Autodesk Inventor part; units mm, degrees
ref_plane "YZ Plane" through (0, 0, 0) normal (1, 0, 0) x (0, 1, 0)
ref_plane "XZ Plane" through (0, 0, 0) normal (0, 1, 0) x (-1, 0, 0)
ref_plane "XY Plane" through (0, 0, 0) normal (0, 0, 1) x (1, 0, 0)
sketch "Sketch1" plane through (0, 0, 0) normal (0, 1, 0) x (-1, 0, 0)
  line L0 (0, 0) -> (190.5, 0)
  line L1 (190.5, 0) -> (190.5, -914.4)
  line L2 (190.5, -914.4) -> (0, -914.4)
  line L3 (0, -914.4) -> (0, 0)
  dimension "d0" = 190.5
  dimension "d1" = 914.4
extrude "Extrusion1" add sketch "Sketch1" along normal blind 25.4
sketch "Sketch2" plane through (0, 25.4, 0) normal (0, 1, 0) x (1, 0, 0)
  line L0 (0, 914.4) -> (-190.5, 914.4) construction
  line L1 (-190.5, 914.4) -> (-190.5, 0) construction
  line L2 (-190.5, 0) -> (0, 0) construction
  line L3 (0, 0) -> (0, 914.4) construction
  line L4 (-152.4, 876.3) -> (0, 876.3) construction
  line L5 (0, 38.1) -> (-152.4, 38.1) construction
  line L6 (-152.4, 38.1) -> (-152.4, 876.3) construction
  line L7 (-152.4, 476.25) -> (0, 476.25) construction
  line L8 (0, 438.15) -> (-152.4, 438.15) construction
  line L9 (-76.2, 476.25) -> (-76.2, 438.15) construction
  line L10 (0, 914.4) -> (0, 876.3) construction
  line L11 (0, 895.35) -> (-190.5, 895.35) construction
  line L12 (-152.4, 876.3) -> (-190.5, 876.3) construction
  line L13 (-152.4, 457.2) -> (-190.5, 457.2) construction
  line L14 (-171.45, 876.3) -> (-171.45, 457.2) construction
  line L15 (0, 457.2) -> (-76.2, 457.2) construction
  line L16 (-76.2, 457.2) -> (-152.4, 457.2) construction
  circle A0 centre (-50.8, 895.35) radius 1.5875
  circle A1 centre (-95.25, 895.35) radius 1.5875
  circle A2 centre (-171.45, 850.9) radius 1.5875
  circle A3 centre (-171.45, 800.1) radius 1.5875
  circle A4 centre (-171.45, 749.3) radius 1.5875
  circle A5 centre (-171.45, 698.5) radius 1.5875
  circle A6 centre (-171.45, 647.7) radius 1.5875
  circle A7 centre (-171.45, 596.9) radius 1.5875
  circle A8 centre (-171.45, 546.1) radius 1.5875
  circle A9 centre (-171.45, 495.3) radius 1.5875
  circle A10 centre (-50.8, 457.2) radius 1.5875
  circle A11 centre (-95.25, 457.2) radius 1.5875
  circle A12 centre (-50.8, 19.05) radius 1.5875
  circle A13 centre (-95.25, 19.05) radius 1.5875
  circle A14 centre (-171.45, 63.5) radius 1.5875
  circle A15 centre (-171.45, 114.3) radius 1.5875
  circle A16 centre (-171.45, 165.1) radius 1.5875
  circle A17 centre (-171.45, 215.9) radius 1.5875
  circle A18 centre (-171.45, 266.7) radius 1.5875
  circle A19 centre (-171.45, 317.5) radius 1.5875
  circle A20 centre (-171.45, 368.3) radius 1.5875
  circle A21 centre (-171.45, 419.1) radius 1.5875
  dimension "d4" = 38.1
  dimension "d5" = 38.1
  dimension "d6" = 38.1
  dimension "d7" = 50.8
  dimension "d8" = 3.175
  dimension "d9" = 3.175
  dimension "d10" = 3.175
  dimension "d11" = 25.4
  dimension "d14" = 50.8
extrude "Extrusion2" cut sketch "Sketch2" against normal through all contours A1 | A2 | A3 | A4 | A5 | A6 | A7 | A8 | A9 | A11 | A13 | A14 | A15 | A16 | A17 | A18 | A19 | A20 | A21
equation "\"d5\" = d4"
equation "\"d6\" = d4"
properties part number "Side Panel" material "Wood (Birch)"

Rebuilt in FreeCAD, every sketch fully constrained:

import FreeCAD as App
import Part
import Sketcher
from FreeCAD import Vector
Q = App.Units.Quantity


def add_polygon(sketch, points):
    """Adds a closed chain of lines whose ends are joined by coincident constraints."""
    first, n = sketch.GeometryCount, len(points)
    for a, b in zip(points, points[1:] + points[:1]):
        sketch.addGeometry(Part.LineSegment(App.Vector(*a, 0), App.Vector(*b, 0)), False)
    for i in range(n):
        sketch.addConstraint(Sketcher.Constraint("Coincident", first + i, 2, first + (i + 1) % n, 1))

doc = App.newDocument("Part")
body = doc.addObject("PartDesign::Body", "Body")

# Sketch on XZ plane
sketch1 = body.newObject("Sketcher::SketchObject", "Sketch")
sketch1.AttachmentSupport = (doc.getObject("XZ_Plane"), [""])
sketch1.MapMode = "FlatFace"
add_polygon(sketch1, [(-190, 0), (0, 0), (0, -914), (-190, -914)])  # lines 0-3
sketch1.addConstraint([
    Sketcher.Constraint("Horizontal", 0),
    Sketcher.Constraint("Vertical", 1),
    Sketcher.Constraint("Horizontal", 2),
    Sketcher.Constraint("Vertical", 3),
    Sketcher.Constraint("Coincident", 0, 2, -1, 1),
    Sketcher.Constraint("DistanceY", 1, 2, 1, 1, Q("36 in")),
    Sketcher.Constraint("DistanceX", 0, 1, 0, 2, Q("7.5 in")),
])
pad1 = body.newObject("PartDesign::Pad", "Pad")
pad1.Profile = sketch1
pad1.Length = Q("1 in")
pad1.Reversed = True

# Sketch on XZ plane
sketch2 = body.newObject("Sketcher::SketchObject", "Sketch001")
sketch2.AttachmentSupport = (doc.getObject("XZ_Plane"), [""])
sketch2.MapMode = "FlatFace"
sketch2.AttachmentOffset = App.Placement(Vector(0, 0, -1 * 25.4), App.Rotation())
sketch2.addGeometry([
    Part.Circle(Vector(-95.2, -895.4, 0), Vector(0, 0, 1), 1.6),  # 0
    Part.Circle(Vector(-171.4, -850.9, 0), Vector(0, 0, 1), 1.6),  # 1
    Part.Circle(Vector(-171.4, -800.1, 0), Vector(0, 0, 1), 1.6),  # 2
    Part.Circle(Vector(-171.4, -749.3, 0), Vector(0, 0, 1), 1.6),  # 3
    Part.Circle(Vector(-171.4, -698.5, 0), Vector(0, 0, 1), 1.6),  # 4
    Part.Circle(Vector(-171.4, -647.7, 0), Vector(0, 0, 1), 1.6),  # 5
    Part.Circle(Vector(-171.4, -596.9, 0), Vector(0, 0, 1), 1.6),  # 6
    Part.Circle(Vector(-171.4, -546.1, 0), Vector(0, 0, 1), 1.6),  # 7
    Part.Circle(Vector(-171.4, -495.3, 0), Vector(0, 0, 1), 1.6),  # 8
    Part.Circle(Vector(-95.2, -457.2, 0), Vector(0, 0, 1), 1.6),  # 9
    Part.Circle(Vector(-95.2, -19.1, 0), Vector(0, 0, 1), 1.6),  # 10
    Part.Circle(Vector(-171.4, -63.5, 0), Vector(0, 0, 1), 1.6),  # 11
    Part.Circle(Vector(-171.4, -114.3, 0), Vector(0, 0, 1), 1.6),  # 12
    Part.Circle(Vector(-171.4, -165.1, 0), Vector(0, 0, 1), 1.6),  # 13
    Part.Circle(Vector(-171.4, -215.9, 0), Vector(0, 0, 1), 1.6),  # 14
    Part.Circle(Vector(-171.4, -266.7, 0), Vector(0, 0, 1), 1.6),  # 15
    Part.Circle(Vector(-171.4, -317.5, 0), Vector(0, 0, 1), 1.6),  # 16
    Part.Circle(Vector(-171.4, -368.3, 0), Vector(0, 0, 1), 1.6),  # 17
    Part.Circle(Vector(-171.4, -419.1, 0), Vector(0, 0, 1), 1.6),  # 18
], False)
sketch2.addConstraint([
    Sketcher.Constraint("Equal", 0, 1),
    Sketcher.Constraint("Equal", 1, 2),
    Sketcher.Constraint("Equal", 2, 3),
    Sketcher.Constraint("Equal", 3, 4),
    Sketcher.Constraint("Equal", 4, 5),
    Sketcher.Constraint("Equal", 5, 6),
    Sketcher.Constraint("Equal", 6, 7),
    Sketcher.Constraint("Equal", 7, 8),
    Sketcher.Constraint("Equal", 8, 9),
    Sketcher.Constraint("Equal", 9, 10),
    Sketcher.Constraint("Equal", 10, 11),
    Sketcher.Constraint("Equal", 11, 12),
    Sketcher.Constraint("Equal", 12, 13),
    Sketcher.Constraint("Equal", 13, 14),
    Sketcher.Constraint("Equal", 14, 15),
    Sketcher.Constraint("Equal", 15, 16),
    Sketcher.Constraint("Equal", 16, 17),
    Sketcher.Constraint("Equal", 17, 18),
    Sketcher.Constraint("Vertical", 1, 3, 2, 3),
    Sketcher.Constraint("Vertical", 2, 3, 3, 3),
    Sketcher.Constraint("Vertical", 3, 3, 4, 3),
    Sketcher.Constraint("Vertical", 4, 3, 5, 3),
    Sketcher.Constraint("Vertical", 5, 3, 6, 3),
    Sketcher.Constraint("Vertical", 6, 3, 7, 3),
    Sketcher.Constraint("Vertical", 7, 3, 8, 3),
    Sketcher.Constraint("Vertical", 0, 3, 9, 3),
    Sketcher.Constraint("Vertical", 9, 3, 10, 3),
    Sketcher.Constraint("Vertical", 8, 3, 11, 3),
    Sketcher.Constraint("Vertical", 11, 3, 12, 3),
    Sketcher.Constraint("Vertical", 12, 3, 13, 3),
    Sketcher.Constraint("Vertical", 13, 3, 14, 3),
    Sketcher.Constraint("Vertical", 14, 3, 15, 3),
    Sketcher.Constraint("Vertical", 15, 3, 16, 3),
    Sketcher.Constraint("Vertical", 16, 3, 17, 3),
    Sketcher.Constraint("Vertical", 17, 3, 18, 3),
    Sketcher.Constraint("Diameter", 0, Q("0.125 in")),
    Sketcher.Constraint("DistanceY", 1, 3, 2, 3, Q("2 in")),
    Sketcher.Constraint("DistanceY", 2, 3, 3, 3, Q("2 in")),
    Sketcher.Constraint("DistanceY", 3, 3, 4, 3, Q("2 in")),
    Sketcher.Constraint("DistanceY", 4, 3, 5, 3, Q("2 in")),
    Sketcher.Constraint("DistanceY", 5, 3, 6, 3, Q("2 in")),
    Sketcher.Constraint("DistanceY", 6, 3, 7, 3, Q("2 in")),
    Sketcher.Constraint("DistanceY", 7, 3, 8, 3, Q("2 in")),
    Sketcher.Constraint("DistanceY", 12, 3, 11, 3, Q("2 in")),
    Sketcher.Constraint("DistanceY", 13, 3, 12, 3, Q("2 in")),
    Sketcher.Constraint("DistanceY", 14, 3, 13, 3, Q("2 in")),
    Sketcher.Constraint("DistanceY", 15, 3, 14, 3, Q("2 in")),
    Sketcher.Constraint("DistanceY", 16, 3, 15, 3, Q("2 in")),
    Sketcher.Constraint("DistanceY", 17, 3, 16, 3, Q("2 in")),
    Sketcher.Constraint("DistanceY", 18, 3, 17, 3, Q("2 in")),
    Sketcher.Constraint("DistanceY", 8, 3, 9, 3, Q("1.5 in")),
    Sketcher.Constraint("DistanceY", 9, 3, 18, 3, Q("1.5 in")),
    Sketcher.Constraint("DistanceY", 9, 3, -1, 1, Q("18 in")),
    Sketcher.Constraint("DistanceX", 1, 3, 0, 3, Q("3 in")),
    Sketcher.Constraint("DistanceX", 0, 3, -1, 1, Q("3.75 in")),
    Sketcher.Constraint("DistanceY", 0, 3, -1, 1, Q("35.25 in")),
    Sketcher.Constraint("DistanceY", 10, 3, -1, 1, Q("0.75 in")),
])
pocket1 = body.newObject("PartDesign::Pocket", "Pocket")
pocket1.Profile = sketch2
pocket1.Type = "ThroughAll"
pocket1.Reversed = True

doc.recompute()
